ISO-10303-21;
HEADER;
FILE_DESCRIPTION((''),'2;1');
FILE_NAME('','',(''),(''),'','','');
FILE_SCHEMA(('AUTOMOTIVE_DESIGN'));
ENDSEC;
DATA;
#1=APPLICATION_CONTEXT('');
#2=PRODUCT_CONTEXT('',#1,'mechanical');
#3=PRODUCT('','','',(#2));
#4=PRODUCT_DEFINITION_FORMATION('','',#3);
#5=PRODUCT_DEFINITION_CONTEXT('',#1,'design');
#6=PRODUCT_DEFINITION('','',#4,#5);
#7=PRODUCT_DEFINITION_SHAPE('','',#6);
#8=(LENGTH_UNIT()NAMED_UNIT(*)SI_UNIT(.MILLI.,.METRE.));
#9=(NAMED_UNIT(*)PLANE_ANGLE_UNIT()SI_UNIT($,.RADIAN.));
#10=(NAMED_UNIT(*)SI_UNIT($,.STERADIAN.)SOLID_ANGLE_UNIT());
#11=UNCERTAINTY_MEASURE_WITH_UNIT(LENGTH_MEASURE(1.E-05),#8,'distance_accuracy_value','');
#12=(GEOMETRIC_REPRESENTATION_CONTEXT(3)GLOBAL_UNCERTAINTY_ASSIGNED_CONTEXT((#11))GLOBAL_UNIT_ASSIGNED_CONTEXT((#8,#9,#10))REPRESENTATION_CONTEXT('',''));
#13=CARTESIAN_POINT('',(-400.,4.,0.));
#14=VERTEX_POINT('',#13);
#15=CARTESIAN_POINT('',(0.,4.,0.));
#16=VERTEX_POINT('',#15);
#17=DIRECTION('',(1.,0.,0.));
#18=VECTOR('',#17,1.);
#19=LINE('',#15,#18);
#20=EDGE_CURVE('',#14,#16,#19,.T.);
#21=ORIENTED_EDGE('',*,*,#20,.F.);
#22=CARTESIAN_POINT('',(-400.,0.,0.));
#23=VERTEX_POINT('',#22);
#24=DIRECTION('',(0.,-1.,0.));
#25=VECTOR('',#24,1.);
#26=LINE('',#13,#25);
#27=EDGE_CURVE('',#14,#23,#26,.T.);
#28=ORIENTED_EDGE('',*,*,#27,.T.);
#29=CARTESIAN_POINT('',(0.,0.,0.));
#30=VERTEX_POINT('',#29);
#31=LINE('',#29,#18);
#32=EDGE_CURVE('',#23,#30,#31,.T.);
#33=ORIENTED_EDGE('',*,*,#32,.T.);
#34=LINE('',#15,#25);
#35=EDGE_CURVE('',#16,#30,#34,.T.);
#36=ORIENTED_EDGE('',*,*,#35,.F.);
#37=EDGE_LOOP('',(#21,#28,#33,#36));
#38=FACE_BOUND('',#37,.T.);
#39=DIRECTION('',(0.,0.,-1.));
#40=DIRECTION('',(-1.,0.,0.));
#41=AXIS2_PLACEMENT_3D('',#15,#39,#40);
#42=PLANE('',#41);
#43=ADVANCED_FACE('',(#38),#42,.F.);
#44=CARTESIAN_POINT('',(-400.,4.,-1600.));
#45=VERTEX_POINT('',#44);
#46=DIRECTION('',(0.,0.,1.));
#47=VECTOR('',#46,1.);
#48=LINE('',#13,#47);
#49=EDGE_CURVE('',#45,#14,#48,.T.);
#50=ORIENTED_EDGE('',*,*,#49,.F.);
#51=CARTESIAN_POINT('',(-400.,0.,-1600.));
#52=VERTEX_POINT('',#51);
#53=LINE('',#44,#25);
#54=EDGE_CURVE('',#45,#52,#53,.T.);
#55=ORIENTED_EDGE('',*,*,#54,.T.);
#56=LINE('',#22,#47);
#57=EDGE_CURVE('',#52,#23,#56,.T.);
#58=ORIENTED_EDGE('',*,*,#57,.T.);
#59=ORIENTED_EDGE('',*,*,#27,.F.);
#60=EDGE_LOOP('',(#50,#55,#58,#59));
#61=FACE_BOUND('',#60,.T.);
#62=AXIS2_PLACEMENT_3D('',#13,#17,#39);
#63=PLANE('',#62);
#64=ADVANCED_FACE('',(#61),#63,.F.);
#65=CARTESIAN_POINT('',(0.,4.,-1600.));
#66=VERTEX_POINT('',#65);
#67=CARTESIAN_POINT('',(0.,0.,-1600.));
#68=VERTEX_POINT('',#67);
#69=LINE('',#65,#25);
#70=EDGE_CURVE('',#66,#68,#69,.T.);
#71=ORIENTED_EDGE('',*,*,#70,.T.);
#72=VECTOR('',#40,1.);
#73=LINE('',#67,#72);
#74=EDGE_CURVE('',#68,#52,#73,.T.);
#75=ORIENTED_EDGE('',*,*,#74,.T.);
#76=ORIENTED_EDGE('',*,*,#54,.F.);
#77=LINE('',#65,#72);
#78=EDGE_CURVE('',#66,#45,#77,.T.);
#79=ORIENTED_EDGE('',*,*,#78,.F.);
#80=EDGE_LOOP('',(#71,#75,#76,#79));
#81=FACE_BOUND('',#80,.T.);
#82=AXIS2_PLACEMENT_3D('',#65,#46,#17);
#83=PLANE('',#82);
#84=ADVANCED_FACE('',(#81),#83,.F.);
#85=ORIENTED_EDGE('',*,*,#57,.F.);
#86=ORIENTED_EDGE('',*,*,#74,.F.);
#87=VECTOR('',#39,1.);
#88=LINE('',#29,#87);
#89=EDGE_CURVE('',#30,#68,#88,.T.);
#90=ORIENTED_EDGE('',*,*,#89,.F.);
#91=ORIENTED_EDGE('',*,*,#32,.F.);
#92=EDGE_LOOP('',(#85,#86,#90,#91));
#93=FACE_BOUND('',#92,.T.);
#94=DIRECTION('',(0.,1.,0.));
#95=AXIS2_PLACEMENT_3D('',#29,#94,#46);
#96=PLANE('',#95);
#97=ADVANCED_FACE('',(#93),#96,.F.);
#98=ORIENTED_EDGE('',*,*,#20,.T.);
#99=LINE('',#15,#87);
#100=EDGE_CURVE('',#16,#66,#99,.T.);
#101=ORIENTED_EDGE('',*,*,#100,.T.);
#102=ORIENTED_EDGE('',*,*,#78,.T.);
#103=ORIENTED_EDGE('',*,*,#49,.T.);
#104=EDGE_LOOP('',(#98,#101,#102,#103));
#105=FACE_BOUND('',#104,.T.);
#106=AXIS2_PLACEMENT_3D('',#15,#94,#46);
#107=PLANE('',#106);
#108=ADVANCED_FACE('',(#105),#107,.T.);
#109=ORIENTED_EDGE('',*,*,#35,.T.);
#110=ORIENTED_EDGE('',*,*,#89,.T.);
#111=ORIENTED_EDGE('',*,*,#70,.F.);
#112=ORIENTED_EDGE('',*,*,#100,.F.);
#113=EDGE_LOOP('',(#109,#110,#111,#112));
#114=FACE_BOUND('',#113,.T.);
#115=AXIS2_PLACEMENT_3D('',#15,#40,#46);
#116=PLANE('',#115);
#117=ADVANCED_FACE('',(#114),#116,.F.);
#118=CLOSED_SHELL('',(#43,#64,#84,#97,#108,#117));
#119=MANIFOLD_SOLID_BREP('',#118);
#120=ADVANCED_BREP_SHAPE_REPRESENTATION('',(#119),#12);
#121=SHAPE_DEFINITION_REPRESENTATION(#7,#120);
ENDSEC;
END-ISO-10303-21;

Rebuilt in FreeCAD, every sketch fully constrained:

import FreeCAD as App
import Part
import Sketcher

V = App.Vector

doc = App.newDocument("Part")
body = doc.addObject("PartDesign::Body", "Body")

sketch1 = doc.addObject("Sketcher::SketchObject", "Sketch")
body.addObject(sketch1)
sketch1.AttachmentSupport = (doc.XZ_Plane, [""])
sketch1.MapMode = "FlatFace"
sketch1.addGeometry(Part.LineSegment(V(-400, -1600, 0), V(-400, 0, 0)), False)
sketch1.addGeometry(Part.LineSegment(V(-400, 0, 0), V(0, 0, 0)), False)
sketch1.addGeometry(Part.LineSegment(V(0, 0, 0), V(0, -1600, 0)), False)
sketch1.addGeometry(Part.LineSegment(V(0, -1600, 0), V(-400, -1600, 0)), False)
sketch1.addConstraint(Sketcher.Constraint("Coincident", 0, 2, 1, 1))
sketch1.addConstraint(Sketcher.Constraint("Coincident", 1, 2, 2, 1))
sketch1.addConstraint(Sketcher.Constraint("Coincident", 2, 2, 3, 1))
sketch1.addConstraint(Sketcher.Constraint("Coincident", 3, 2, 0, 1))
sketch1.addConstraint(Sketcher.Constraint("Vertical", 0))
sketch1.addConstraint(Sketcher.Constraint("Horizontal", 1))
sketch1.addConstraint(Sketcher.Constraint("Vertical", 2))
sketch1.addConstraint(Sketcher.Constraint("Horizontal", 3))
sketch1.addConstraint(Sketcher.Constraint("Coincident", 1, 2, -1, 1))
sketch1.addConstraint(Sketcher.Constraint("DistanceX", 1, 1, 1, 2, 400.0))
sketch1.addConstraint(Sketcher.Constraint("DistanceY", 0, 1, 0, 2, 1600.0))
pad1 = doc.addObject("PartDesign::Pad", "Pad")
body.addObject(pad1)
pad1.Profile = sketch1
pad1.Length = 4
pad1.Reversed = True

doc.recompute()
